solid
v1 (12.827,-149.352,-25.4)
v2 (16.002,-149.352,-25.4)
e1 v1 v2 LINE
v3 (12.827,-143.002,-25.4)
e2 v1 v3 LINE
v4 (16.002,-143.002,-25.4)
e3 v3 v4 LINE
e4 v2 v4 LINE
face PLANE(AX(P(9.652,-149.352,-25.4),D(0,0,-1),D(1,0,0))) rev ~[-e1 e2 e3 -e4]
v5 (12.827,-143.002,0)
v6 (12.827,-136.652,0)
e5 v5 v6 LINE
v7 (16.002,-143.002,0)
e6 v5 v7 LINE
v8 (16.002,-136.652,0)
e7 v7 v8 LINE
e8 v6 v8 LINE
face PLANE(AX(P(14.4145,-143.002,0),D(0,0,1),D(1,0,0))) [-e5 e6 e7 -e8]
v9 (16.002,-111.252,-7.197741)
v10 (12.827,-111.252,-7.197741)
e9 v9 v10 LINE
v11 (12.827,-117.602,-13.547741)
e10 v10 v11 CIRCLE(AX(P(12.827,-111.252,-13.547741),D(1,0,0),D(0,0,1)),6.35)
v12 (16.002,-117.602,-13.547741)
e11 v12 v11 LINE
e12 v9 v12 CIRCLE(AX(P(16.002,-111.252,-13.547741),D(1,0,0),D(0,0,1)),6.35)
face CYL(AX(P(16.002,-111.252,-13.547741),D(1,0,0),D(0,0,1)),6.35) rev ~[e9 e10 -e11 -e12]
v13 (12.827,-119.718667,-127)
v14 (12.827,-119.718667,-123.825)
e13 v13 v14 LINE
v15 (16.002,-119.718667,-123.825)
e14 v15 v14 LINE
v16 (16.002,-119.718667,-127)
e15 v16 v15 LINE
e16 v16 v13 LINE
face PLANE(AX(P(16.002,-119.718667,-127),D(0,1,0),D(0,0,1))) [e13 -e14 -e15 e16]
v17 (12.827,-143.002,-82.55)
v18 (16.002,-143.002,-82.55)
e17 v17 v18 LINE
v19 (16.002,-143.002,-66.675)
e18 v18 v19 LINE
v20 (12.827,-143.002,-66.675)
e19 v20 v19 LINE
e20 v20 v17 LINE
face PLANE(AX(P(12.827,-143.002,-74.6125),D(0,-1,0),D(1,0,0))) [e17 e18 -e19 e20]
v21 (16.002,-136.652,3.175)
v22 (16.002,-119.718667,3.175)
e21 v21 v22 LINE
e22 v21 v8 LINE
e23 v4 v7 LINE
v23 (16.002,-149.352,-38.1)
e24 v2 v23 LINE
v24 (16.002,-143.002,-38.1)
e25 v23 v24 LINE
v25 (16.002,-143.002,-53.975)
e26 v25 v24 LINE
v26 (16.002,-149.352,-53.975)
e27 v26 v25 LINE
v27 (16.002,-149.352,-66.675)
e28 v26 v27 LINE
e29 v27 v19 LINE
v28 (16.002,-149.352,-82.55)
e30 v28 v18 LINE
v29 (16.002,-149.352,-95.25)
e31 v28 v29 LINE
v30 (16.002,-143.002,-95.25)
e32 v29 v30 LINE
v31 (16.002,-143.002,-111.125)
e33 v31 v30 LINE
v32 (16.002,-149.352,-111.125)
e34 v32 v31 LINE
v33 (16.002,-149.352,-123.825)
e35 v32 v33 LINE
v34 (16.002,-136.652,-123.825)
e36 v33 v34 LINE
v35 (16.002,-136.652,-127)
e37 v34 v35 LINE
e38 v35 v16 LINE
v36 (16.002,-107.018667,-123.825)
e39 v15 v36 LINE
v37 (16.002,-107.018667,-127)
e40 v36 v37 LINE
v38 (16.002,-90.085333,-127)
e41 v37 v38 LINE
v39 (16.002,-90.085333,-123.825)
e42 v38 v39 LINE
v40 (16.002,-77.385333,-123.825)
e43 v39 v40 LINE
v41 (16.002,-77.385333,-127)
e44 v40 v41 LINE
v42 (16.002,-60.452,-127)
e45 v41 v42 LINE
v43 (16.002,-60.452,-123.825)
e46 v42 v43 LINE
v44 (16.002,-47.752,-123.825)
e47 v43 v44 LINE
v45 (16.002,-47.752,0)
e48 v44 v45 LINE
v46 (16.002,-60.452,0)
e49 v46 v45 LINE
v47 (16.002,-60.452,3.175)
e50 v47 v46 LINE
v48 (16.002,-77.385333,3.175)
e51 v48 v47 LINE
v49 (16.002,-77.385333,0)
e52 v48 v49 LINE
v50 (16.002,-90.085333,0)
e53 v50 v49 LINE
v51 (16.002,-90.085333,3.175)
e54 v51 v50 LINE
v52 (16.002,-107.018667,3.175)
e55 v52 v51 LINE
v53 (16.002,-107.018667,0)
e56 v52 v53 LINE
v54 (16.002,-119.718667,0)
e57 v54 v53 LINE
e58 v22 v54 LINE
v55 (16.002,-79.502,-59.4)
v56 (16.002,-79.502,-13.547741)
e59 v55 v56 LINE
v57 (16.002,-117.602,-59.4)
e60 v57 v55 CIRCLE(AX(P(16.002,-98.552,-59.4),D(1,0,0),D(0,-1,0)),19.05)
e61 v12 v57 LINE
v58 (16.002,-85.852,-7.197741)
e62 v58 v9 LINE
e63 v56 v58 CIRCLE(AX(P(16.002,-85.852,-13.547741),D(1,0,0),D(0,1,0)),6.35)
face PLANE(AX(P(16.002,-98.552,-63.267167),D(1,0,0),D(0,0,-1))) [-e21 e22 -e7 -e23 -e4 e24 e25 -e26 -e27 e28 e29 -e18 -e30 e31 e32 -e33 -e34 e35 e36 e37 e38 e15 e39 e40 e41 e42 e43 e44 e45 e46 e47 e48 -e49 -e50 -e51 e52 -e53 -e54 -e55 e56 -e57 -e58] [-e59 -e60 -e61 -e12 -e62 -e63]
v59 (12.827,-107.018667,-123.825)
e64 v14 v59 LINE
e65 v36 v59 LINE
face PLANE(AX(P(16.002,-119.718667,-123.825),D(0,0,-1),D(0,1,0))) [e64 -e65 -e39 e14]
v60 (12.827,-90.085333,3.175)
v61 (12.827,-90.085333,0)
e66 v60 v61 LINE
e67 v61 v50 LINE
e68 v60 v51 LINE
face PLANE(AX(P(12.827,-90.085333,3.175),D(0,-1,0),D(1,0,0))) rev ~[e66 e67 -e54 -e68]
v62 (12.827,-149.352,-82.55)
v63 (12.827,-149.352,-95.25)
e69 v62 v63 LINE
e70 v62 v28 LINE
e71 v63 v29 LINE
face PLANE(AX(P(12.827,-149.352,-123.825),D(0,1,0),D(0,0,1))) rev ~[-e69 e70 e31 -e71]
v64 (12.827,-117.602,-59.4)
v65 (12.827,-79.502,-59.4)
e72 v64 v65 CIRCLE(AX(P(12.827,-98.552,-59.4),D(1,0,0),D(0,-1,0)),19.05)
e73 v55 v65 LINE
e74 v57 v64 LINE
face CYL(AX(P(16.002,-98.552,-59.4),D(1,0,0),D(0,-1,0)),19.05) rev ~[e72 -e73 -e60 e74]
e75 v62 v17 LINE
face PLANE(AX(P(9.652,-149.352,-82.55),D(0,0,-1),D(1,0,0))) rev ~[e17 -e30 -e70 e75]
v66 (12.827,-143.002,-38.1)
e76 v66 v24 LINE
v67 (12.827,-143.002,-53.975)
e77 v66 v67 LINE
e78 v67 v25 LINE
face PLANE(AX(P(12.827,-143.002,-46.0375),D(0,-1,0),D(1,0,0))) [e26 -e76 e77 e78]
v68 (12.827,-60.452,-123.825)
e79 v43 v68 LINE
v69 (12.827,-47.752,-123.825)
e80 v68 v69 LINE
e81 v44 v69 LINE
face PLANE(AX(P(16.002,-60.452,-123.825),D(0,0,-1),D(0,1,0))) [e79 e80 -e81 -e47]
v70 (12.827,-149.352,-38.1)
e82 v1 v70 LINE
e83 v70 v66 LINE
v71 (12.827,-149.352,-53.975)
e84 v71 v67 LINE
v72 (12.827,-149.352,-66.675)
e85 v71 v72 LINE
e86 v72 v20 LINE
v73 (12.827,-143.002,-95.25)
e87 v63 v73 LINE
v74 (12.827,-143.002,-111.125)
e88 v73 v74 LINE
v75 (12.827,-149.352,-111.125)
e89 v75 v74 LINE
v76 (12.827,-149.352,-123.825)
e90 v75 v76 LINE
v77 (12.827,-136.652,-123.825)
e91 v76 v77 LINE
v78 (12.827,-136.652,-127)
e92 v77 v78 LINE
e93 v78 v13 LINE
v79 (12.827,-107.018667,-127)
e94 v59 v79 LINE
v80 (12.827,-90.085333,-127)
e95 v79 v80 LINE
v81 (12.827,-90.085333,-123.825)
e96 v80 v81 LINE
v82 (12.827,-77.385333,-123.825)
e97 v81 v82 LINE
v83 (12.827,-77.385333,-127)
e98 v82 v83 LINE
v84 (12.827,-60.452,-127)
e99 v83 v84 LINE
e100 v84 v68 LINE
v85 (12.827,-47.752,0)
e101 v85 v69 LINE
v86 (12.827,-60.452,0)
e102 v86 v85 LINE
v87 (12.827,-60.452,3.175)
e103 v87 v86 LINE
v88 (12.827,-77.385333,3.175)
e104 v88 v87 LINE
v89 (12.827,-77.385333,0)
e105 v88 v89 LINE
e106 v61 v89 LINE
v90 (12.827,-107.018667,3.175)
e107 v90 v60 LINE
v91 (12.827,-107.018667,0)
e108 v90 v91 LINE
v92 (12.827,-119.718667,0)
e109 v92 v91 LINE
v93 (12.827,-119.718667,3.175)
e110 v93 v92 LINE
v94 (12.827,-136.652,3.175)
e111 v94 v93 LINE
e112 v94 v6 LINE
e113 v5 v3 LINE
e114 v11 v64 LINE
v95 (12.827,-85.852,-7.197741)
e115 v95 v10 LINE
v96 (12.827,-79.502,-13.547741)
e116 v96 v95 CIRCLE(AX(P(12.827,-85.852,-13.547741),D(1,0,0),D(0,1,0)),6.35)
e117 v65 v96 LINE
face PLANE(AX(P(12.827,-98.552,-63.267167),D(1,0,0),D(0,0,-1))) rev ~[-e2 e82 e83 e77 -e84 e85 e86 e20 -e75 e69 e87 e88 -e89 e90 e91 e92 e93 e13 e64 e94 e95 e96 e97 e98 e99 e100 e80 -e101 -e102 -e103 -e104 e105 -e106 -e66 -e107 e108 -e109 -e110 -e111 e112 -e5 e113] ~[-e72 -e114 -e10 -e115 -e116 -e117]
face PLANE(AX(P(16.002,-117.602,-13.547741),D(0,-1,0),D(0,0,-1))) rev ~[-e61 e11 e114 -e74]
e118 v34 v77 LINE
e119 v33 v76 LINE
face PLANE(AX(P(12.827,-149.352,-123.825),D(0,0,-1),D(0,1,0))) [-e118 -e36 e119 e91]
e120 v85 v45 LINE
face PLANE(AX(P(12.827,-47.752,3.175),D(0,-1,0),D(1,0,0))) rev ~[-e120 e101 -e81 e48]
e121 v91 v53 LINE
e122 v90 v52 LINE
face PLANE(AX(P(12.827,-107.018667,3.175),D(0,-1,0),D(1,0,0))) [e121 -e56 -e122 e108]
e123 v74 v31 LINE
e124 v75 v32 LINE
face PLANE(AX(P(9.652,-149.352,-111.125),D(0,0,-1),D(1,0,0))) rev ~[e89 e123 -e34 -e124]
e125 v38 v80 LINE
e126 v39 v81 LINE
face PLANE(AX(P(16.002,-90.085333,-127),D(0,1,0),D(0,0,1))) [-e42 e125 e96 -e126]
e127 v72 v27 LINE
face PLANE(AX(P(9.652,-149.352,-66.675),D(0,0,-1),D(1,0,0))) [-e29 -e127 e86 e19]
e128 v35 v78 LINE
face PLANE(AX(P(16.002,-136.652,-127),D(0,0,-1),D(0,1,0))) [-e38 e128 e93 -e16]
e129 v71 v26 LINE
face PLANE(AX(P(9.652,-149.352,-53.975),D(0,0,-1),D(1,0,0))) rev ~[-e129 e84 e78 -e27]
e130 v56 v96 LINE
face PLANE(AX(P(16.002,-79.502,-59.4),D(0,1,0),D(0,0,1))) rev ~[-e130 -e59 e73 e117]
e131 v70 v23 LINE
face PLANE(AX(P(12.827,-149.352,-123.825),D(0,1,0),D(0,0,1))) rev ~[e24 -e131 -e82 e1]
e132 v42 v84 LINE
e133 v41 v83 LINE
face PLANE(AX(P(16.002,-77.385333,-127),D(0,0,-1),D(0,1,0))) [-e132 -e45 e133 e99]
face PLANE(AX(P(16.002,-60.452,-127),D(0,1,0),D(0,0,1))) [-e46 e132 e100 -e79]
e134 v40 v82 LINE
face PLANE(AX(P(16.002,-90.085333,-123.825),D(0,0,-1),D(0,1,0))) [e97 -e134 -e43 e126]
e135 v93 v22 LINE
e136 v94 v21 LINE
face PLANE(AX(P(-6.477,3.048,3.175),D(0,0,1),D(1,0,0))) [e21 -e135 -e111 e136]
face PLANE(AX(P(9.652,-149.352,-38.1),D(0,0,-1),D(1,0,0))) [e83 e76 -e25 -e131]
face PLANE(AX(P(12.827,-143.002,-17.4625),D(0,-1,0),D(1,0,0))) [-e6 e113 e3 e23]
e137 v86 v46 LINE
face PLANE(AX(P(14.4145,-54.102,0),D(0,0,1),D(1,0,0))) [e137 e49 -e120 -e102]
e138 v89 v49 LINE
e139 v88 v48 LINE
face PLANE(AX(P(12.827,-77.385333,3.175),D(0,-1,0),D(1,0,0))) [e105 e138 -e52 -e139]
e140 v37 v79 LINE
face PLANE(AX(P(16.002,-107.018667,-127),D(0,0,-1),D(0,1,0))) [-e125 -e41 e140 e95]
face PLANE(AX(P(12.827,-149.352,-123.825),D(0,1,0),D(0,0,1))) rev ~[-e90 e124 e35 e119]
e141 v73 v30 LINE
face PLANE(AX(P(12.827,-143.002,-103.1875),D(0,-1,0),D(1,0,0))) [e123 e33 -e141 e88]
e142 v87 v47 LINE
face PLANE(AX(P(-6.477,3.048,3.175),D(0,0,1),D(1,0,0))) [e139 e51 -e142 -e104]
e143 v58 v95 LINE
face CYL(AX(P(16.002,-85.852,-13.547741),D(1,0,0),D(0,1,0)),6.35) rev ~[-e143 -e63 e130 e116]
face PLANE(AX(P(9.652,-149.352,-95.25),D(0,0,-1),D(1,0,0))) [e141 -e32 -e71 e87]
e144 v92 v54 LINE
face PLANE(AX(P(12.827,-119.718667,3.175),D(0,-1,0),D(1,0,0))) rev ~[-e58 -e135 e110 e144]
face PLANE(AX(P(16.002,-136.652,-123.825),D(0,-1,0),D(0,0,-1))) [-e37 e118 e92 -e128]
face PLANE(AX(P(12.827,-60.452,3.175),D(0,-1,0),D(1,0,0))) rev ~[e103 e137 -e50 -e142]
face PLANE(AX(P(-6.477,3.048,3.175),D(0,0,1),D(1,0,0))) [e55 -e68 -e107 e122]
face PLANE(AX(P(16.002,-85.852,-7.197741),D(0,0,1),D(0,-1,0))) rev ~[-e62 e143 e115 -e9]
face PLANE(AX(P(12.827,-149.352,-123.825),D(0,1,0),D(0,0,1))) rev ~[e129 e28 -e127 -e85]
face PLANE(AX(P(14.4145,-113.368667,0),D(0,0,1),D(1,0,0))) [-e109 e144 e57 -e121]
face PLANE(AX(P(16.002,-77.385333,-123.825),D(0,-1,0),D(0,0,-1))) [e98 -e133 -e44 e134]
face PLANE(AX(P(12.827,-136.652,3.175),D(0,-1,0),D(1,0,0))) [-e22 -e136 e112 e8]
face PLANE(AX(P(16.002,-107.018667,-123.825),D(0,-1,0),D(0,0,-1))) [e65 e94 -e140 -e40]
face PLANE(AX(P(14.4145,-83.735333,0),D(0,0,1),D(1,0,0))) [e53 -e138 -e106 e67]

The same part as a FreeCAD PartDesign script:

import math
import FreeCAD as App
import Part
import Sketcher
Q = App.Units.Quantity

doc = App.newDocument("Part")
body = doc.addObject("PartDesign::Body", "Body")

sketch1 = body.newObject("Sketcher::SketchObject", "Sketch")
sketch1.AttachmentSupport = (doc.getObject("XY_Plane"), [""])
sketch1.MapMode = "FlatFace"
sketch1.addGeometry([
    Part.LineSegment(App.Vector(-29, 155.4, 0), App.Vector(-29, -149.4, 0)),
    Part.LineSegment(App.Vector(-29, -149.4, 0), App.Vector(16, -149.4, 0)),
    Part.LineSegment(App.Vector(16, -149.4, 0), App.Vector(16, 155.4, 0)),
    Part.LineSegment(App.Vector(16, 155.4, 0), App.Vector(-29, 155.4, 0)),
    Part.LineSegment(App.Vector(-3.3, -143, 0), App.Vector(-3.3, 133.9, 0)),
    Part.ArcOfCircle(Part.Circle(App.Vector(-5.8, 133.9, 0), App.Vector(0, 0, 1), 2.5), math.radians(0), math.radians(90)),
    Part.LineSegment(App.Vector(-5.8, 136.4, 0), App.Vector(-16.3, 136.4, 0)),
    Part.LineSegment(App.Vector(-16.3, 136.4, 0), App.Vector(-16.3, 143, 0)),
    Part.LineSegment(App.Vector(-16.3, 143, 0), App.Vector(3.3, 143, 0)),
    Part.LineSegment(App.Vector(3.3, 143, 0), App.Vector(3.3, -143, 0)),
    Part.LineSegment(App.Vector(3.3, -143, 0), App.Vector(-3.3, -143, 0)),
], False)
sketch1.addConstraint([
    Sketcher.Constraint("Coincident", 0, 2, 1, 1),
    Sketcher.Constraint("Coincident", 1, 2, 2, 1),
    Sketcher.Constraint("Coincident", 2, 2, 3, 1),
    Sketcher.Constraint("Coincident", 3, 2, 0, 1),
    Sketcher.Constraint("Tangent", 4, 2, 5, 1),
    Sketcher.Constraint("Tangent", 5, 2, 6, 1),
    Sketcher.Constraint("Coincident", 6, 2, 7, 1),
    Sketcher.Constraint("Coincident", 7, 2, 8, 1),
    Sketcher.Constraint("Coincident", 8, 2, 9, 1),
    Sketcher.Constraint("Coincident", 9, 2, 10, 1),
    Sketcher.Constraint("Coincident", 10, 2, 4, 1),
    Sketcher.Constraint("Vertical", 0),
    Sketcher.Constraint("Horizontal", 1),
    Sketcher.Constraint("Vertical", 2),
    Sketcher.Constraint("Horizontal", 3),
    Sketcher.Constraint("Vertical", 4),
    Sketcher.Constraint("Horizontal", 6),
    Sketcher.Constraint("Vertical", 7),
    Sketcher.Constraint("Horizontal", 8),
    Sketcher.Constraint("Vertical", 9),
    Sketcher.Constraint("Horizontal", 10),
    Sketcher.Constraint("Symmetric", 8, 2, 10, 2, -1, 1),
    Sketcher.Constraint("Equal", 10, 7),
    Sketcher.Constraint("Radius", 5, Q("0.1 in")),
    Sketcher.Constraint("DistanceY", 0, 2, 0, 1, Q("12 in")),
    Sketcher.Constraint("DistanceY", 4, 1, 4, 2, Q("10.9 in")),
    Sketcher.Constraint("DistanceX", 1, 1, 1, 2, Q("1.77 in")),
    Sketcher.Constraint("DistanceX", 6, 2, 6, 1, Q("0.41 in")),
    Sketcher.Constraint("DistanceX", 8, 1, 8, 2, Q("0.77 in")),
    Sketcher.Constraint("DistanceX", 3, 2, 6, 2, Q("0.5 in")),
    Sketcher.Constraint("DistanceY", 0, 2, -1, 1, Q("5.88 in")),
])
pad1 = body.newObject("PartDesign::Pad", "Pad")
pad1.Profile = sketch1
pad1.Length = Q("0.125 in")

sketch2 = body.newObject("Sketcher::SketchObject", "Sketch001")
sketch2.AttachmentSupport = (doc.getObject("YZ_Plane"), [""])
sketch2.MapMode = "FlatFace"
sketch2.AttachmentOffset = App.Placement(App.Vector(0, 0, 0.63 * 25.4), App.Rotation())
sketch2.addGeometry([
    Part.LineSegment(App.Vector(-47.8, -123.8, 0), App.Vector(-47.8, 3.2, 0)),
    Part.LineSegment(App.Vector(-47.8, 3.2, 0), App.Vector(-149.4, 3.2, 0)),
    Part.LineSegment(App.Vector(-149.4, 3.2, 0), App.Vector(-149.4, -123.8, 0)),
    Part.LineSegment(App.Vector(-149.4, -123.8, 0), App.Vector(-136.7, -123.8, 0)),
    Part.LineSegment(App.Vector(-136.7, -123.8, 0), App.Vector(-136.7, -127, 0)),
    Part.LineSegment(App.Vector(-136.7, -127, 0), App.Vector(-119.7, -127, 0)),
    Part.LineSegment(App.Vector(-119.7, -127, 0), App.Vector(-119.7, -123.8, 0)),
    Part.LineSegment(App.Vector(-119.7, -123.8, 0), App.Vector(-107, -123.8, 0)),
    Part.LineSegment(App.Vector(-107, -123.8, 0), App.Vector(-107, -127, 0)),
    Part.LineSegment(App.Vector(-107, -127, 0), App.Vector(-90.1, -127, 0)),
    Part.LineSegment(App.Vector(-90.1, -127, 0), App.Vector(-90.1, -123.8, 0)),
    Part.LineSegment(App.Vector(-90.1, -123.8, 0), App.Vector(-77.4, -123.8, 0)),
    Part.LineSegment(App.Vector(-77.4, -123.8, 0), App.Vector(-77.4, -127, 0)),
    Part.LineSegment(App.Vector(-77.4, -127, 0), App.Vector(-60.5, -127, 0)),
    Part.LineSegment(App.Vector(-60.5, -127, 0), App.Vector(-60.5, -123.8, 0)),
    Part.LineSegment(App.Vector(-60.5, -123.8, 0), App.Vector(-47.8, -123.8, 0)),
    Part.LineSegment(App.Vector(-101, -11.9, 0), App.Vector(-106.1, -11.9, 0)),
    Part.ArcOfCircle(Part.Circle(App.Vector(-106.1, -10.4, 0), App.Vector(0, 0, 1), 1.5), math.radians(90), math.radians(270)),
    Part.LineSegment(App.Vector(-106.1, -8.9, 0), App.Vector(-101, -8.9, 0)),
    Part.ArcOfCircle(Part.Circle(App.Vector(-101, -10.4, 0), App.Vector(0, 0, 1), 1.5), math.radians(-90), math.radians(90)),
    Part.LineSegment(App.Vector(-101, -60.9, 0), App.Vector(-106.1, -60.9, 0)),
    Part.ArcOfCircle(Part.Circle(App.Vector(-106.1, -59.4, 0), App.Vector(0, 0, 1), 1.5), math.radians(90), math.radians(270)),
    Part.LineSegment(App.Vector(-106.1, -57.9, 0), App.Vector(-101, -57.9, 0)),
    Part.ArcOfCircle(Part.Circle(App.Vector(-101, -59.4, 0), App.Vector(0, 0, 1), 1.5), math.radians(-90), math.radians(90)),
    Part.ArcOfCircle(Part.Circle(App.Vector(-96.1, -10.4, 0), App.Vector(0, 0, 1), 1.5), math.radians(90), math.radians(270)),
    Part.LineSegment(App.Vector(-96.1, -8.9, 0), App.Vector(-91, -8.9, 0)),
    Part.ArcOfCircle(Part.Circle(App.Vector(-91, -10.4, 0), App.Vector(0, 0, 1), 1.5), math.radians(-90), math.radians(90)),
    Part.LineSegment(App.Vector(-91, -11.9, 0), App.Vector(-96.1, -11.9, 0)),
    Part.LineSegment(App.Vector(-96, -36.4, 0), App.Vector(-101.1, -36.4, 0)),
    Part.ArcOfCircle(Part.Circle(App.Vector(-101.1, -25.4, 0), App.Vector(0, 0, 1), 11), math.radians(90), math.radians(270)),
    Part.LineSegment(App.Vector(-101.1, -14.4, 0), App.Vector(-96, -14.4, 0)),
    Part.ArcOfCircle(Part.Circle(App.Vector(-96, -25.4, 0), App.Vector(0, 0, 1), 11), math.radians(-90), math.radians(90)),
    Part.LineSegment(App.Vector(-96.1, -57.9, 0), App.Vector(-91, -57.9, 0)),
    Part.ArcOfCircle(Part.Circle(App.Vector(-91, -59.4, 0), App.Vector(0, 0, 1), 1.5), math.radians(-90), math.radians(90)),
    Part.LineSegment(App.Vector(-91, -60.9, 0), App.Vector(-96.1, -60.9, 0)),
    Part.ArcOfCircle(Part.Circle(App.Vector(-96.1, -59.4, 0), App.Vector(0, 0, 1), 1.5), math.radians(90), math.radians(270)),
], False)
sketch2.addConstraint([
    Sketcher.Constraint("Coincident", 0, 2, 1, 1),
    Sketcher.Constraint("Coincident", 1, 2, 2, 1),
    Sketcher.Constraint("Coincident", 2, 2, 3, 1),
    Sketcher.Constraint("Coincident", 3, 2, 4, 1),
    Sketcher.Constraint("Coincident", 4, 2, 5, 1),
    Sketcher.Constraint("Coincident", 5, 2, 6, 1),
    Sketcher.Constraint("Coincident", 6, 2, 7, 1),
    Sketcher.Constraint("Coincident", 7, 2, 8, 1),
    Sketcher.Constraint("Coincident", 8, 2, 9, 1),
    Sketcher.Constraint("Coincident", 9, 2, 10, 1),
    Sketcher.Constraint("Coincident", 10, 2, 11, 1),
    Sketcher.Constraint("Coincident", 11, 2, 12, 1),
    Sketcher.Constraint("Coincident", 12, 2, 13, 1),
    Sketcher.Constraint("Coincident", 13, 2, 14, 1),
    Sketcher.Constraint("Coincident", 14, 2, 15, 1),
    Sketcher.Constraint("Coincident", 15, 2, 0, 1),
    Sketcher.Constraint("Tangent", 16, 2, 17, 2),
    Sketcher.Constraint("Tangent", 17, 1, 18, 1),
    Sketcher.Constraint("Tangent", 18, 2, 19, 2),
    Sketcher.Constraint("Tangent", 19, 1, 16, 1),
    Sketcher.Constraint("Tangent", 20, 2, 21, 2),
    Sketcher.Constraint("Tangent", 21, 1, 22, 1),
    Sketcher.Constraint("Tangent", 22, 2, 23, 2),
    Sketcher.Constraint("Tangent", 23, 1, 20, 1),
    Sketcher.Constraint("Tangent", 24, 1, 25, 1),
    Sketcher.Constraint("Tangent", 25, 2, 26, 2),
    Sketcher.Constraint("Tangent", 26, 1, 27, 1),
    Sketcher.Constraint("Tangent", 27, 2, 24, 2),
    Sketcher.Constraint("Tangent", 28, 2, 29, 2),
    Sketcher.Constraint("Tangent", 29, 1, 30, 1),
    Sketcher.Constraint("Tangent", 30, 2, 31, 2),
    Sketcher.Constraint("Tangent", 31, 1, 28, 1),
    Sketcher.Constraint("Tangent", 32, 2, 33, 2),
    Sketcher.Constraint("Tangent", 33, 1, 34, 1),
    Sketcher.Constraint("Tangent", 34, 2, 35, 2),
    Sketcher.Constraint("Tangent", 35, 1, 32, 1),
    Sketcher.Constraint("Vertical", 0),
    Sketcher.Constraint("Horizontal", 1),
    Sketcher.Constraint("Vertical", 2),
    Sketcher.Constraint("Horizontal", 3),
    Sketcher.Constraint("Vertical", 4),
    Sketcher.Constraint("Horizontal", 5),
    Sketcher.Constraint("Vertical", 6),
    Sketcher.Constraint("Horizontal", 7),
    Sketcher.Constraint("Vertical", 8),
    Sketcher.Constraint("Horizontal", 9),
    Sketcher.Constraint("Vertical", 10),
    Sketcher.Constraint("Horizontal", 11),
    Sketcher.Constraint("Vertical", 12),
    Sketcher.Constraint("Horizontal", 13),
    Sketcher.Constraint("Vertical", 14),
    Sketcher.Constraint("Horizontal", 15),
    Sketcher.Constraint("Horizontal", 16),
    Sketcher.Constraint("Horizontal", 18),
    Sketcher.Constraint("Horizontal", 20),
    Sketcher.Constraint("Horizontal", 22),
    Sketcher.Constraint("Horizontal", 25),
    Sketcher.Constraint("Horizontal", 27),
    Sketcher.Constraint("Horizontal", 28),
    Sketcher.Constraint("Horizontal", 30),
    Sketcher.Constraint("Horizontal", 32),
    Sketcher.Constraint("Horizontal", 34),
    Sketcher.Constraint("Equal", 19, 21),
    Sketcher.Constraint("Equal", 23, 24),
    Sketcher.Constraint("Equal", 26, 33),
    Sketcher.Constraint("Horizontal", 19, 3, 24, 3),
    Sketcher.Constraint("Horizontal", 23, 3, 33, 3),
    Sketcher.Constraint("Horizontal", 3, 2, 6, 2),
    Sketcher.Constraint("Horizontal", 5, 2, 8, 2),
    Sketcher.Constraint("Horizontal", 7, 2, 10, 2),
    Sketcher.Constraint("Horizontal", 9, 2, 12, 2),
    Sketcher.Constraint("Horizontal", 11, 2, 14, 2),
    Sketcher.Constraint("Vertical", 17, 3, 21, 3),
    Sketcher.Constraint("Vertical", 19, 3, 23, 3),
    Sketcher.Constraint("Vertical", 26, 3, 33, 3),
    Sketcher.Constraint("Vertical", 24, 3, 35, 3),
    Sketcher.Constraint("Equal", 3, 7),
    Sketcher.Constraint("Equal", 5, 9),
    Sketcher.Constraint("Equal", 7, 11),
    Sketcher.Constraint("Equal", 9, 13),
    Sketcher.Constraint("Equal", 11, 15),
    Sketcher.Constraint("Equal", 22, 25),
    Sketcher.Constraint("Equal", 27, 28),
    Sketcher.Constraint("DistanceX", 1, 2, 1, 1, Q("4 in")),
    Sketcher.Constraint("DistanceY", 0, 1, 0, 2, Q("5 in")),
    Sketcher.Constraint("DistanceX", 3, 1, 3, 2, Q("0.5 in")),
    Sketcher.Constraint("DistanceX", 16, 2, 16, 1, Q("0.2 in")),
    Sketcher.Constraint("DistanceY", 29, 3, -1, 1, Q("1 in")),
    Sketcher.Constraint("DistanceY", 4, 2, -1, 1, Q("5 in")),
    Sketcher.Constraint("DistanceX", 31, 3, 0, 2, Q("1.9 in")),
    Sketcher.Constraint("DistanceY", 4, 2, 4, 1, Q("0.125 in")),
    Sketcher.Constraint("DistanceX", 29, 3, -1, 1, Q("3.98 in")),
    Sketcher.Constraint("Radius", 17, Q("1.5 mm")),
    Sketcher.Constraint("Radius", 29, Q("11 mm")),
    Sketcher.Constraint("DistanceX", 17, 3, -1, 1, Q("106.092 mm")),
    Sketcher.Constraint("DistanceY", 17, 3, -1, 1, Q("10.4 mm")),
    Sketcher.Constraint("DistanceY", 21, 3, -1, 1, Q("59.4 mm")),
    Sketcher.Constraint("DistanceX", 24, 3, -1, 1, Q("96.092 mm")),
])
pad2 = body.newObject("PartDesign::Pad", "Pad001")
pad2.Profile = sketch2
pad2.Length = Q("0.125 in")
pad2.Reversed = True

sketch3 = body.newObject("Sketcher::SketchObject", "Sketch002")
sketch3.AttachmentSupport = (doc.getObject("YZ_Plane"), [""])
sketch3.MapMode = "FlatFace"
sketch3.AttachmentOffset = App.Placement(App.Vector(0, 0, 0.505 * 25.4), App.Rotation())
sketch3.addGeometry([
    Part.LineSegment(App.Vector(-143, -124, 0), App.Vector(-149, -124, 0)),
    Part.LineSegment(App.Vector(-149, -124, 0), App.Vector(-149, 0, 0)),
    Part.LineSegment(App.Vector(-149, 0, 0), App.Vector(-143, 0, 0)),
    Part.LineSegment(App.Vector(-143, 0, 0), App.Vector(-143, -124, 0)),
], False)
sketch3.addConstraint([
    Sketcher.Constraint("Coincident", 0, 2, 1, 1),
    Sketcher.Constraint("Coincident", 1, 2, 2, 1),
    Sketcher.Constraint("Coincident", 2, 2, 3, 1),
    Sketcher.Constraint("Coincident", 3, 2, 0, 1),
    Sketcher.Constraint("Horizontal", 0),
    Sketcher.Constraint("Vertical", 1),
    Sketcher.Constraint("Horizontal", 2),
    Sketcher.Constraint("Vertical", 3),
    Sketcher.Constraint("PointOnObject", 1, 2, -1),
    Sketcher.Constraint("DistanceX", 0, 2, 0, 1, Q("0.25 in")),
    Sketcher.Constraint("DistanceY", 1, 1, 1, 2, Q("4.875 in")),
    Sketcher.Constraint("DistanceX", 0, 2, -1, 1, Q("5.88 in")),
])
pad3 = body.newObject("PartDesign::Pad", "Pad002")
pad3.Profile = sketch3
pad3.Length = Q("1.645 in")
pad3.Reversed = True

sketch4 = body.newObject("Sketcher::SketchObject", "Sketch003")
sketch4.AttachmentSupport = (doc.getObject("XY_Plane"), [""])
sketch4.MapMode = "FlatFace"
sketch4.AttachmentOffset = App.Placement(App.Vector(0, 0, 0.125 * 25.4), App.Rotation())
sketch4.addGeometry([
    Part.LineSegment(App.Vector(12.8, -149.4, 0), App.Vector(12.8, -47.8, 0)),
    Part.LineSegment(App.Vector(12.8, -47.8, 0), App.Vector(16, -47.8, 0)),
    Part.LineSegment(App.Vector(16, -47.8, 0), App.Vector(16, 165.7, 0)),
    Part.LineSegment(App.Vector(16, 165.7, 0), App.Vector(-54.2, 165.7, 0)),
    Part.LineSegment(App.Vector(-54.2, 165.7, 0), App.Vector(-54.2, -149.4, 0)),
    Part.LineSegment(App.Vector(-54.2, -149.4, 0), App.Vector(12.8, -149.4, 0)),
    Part.LineSegment(App.Vector(-5.8, 136.4, 0), App.Vector(-16.3, 136.4, 0)),
    Part.LineSegment(App.Vector(-16.3, 136.4, 0), App.Vector(-16.3, 143, 0)),
    Part.LineSegment(App.Vector(-16.3, 143, 0), App.Vector(3.3, 143, 0)),
    Part.LineSegment(App.Vector(3.3, 143, 0), App.Vector(3.3, -143, 0)),
    Part.LineSegment(App.Vector(3.3, -143, 0), App.Vector(-3.3, -143, 0)),
    Part.LineSegment(App.Vector(-3.3, -143, 0), App.Vector(-3.3, 133.9, 0)),
    Part.ArcOfCircle(Part.Circle(App.Vector(-5.8, 133.9, 0), App.Vector(0, 0, 1), 2.5), math.radians(0), math.radians(90)),
], False)
sketch4.addConstraint([
    Sketcher.Constraint("Coincident", 0, 2, 1, 1),
    Sketcher.Constraint("Coincident", 1, 2, 2, 1),
    Sketcher.Constraint("Coincident", 2, 2, 3, 1),
    Sketcher.Constraint("Coincident", 3, 2, 4, 1),
    Sketcher.Constraint("Coincident", 4, 2, 5, 1),
    Sketcher.Constraint("Coincident", 5, 2, 0, 1),
    Sketcher.Constraint("Coincident", 6, 2, 7, 1),
    Sketcher.Constraint("Coincident", 7, 2, 8, 1),
    Sketcher.Constraint("Coincident", 8, 2, 9, 1),
    Sketcher.Constraint("Coincident", 9, 2, 10, 1),
    Sketcher.Constraint("Coincident", 10, 2, 11, 1),
    Sketcher.Constraint("Tangent", 11, 2, 12, 1),
    Sketcher.Constraint("Tangent", 12, 2, 6, 1),
    Sketcher.Constraint("Vertical", 0),
    Sketcher.Constraint("Horizontal", 1),
    Sketcher.Constraint("Vertical", 2),
    Sketcher.Constraint("Horizontal", 3),
    Sketcher.Constraint("Vertical", 4),
    Sketcher.Constraint("Horizontal", 5),
    Sketcher.Constraint("Horizontal", 6),
    Sketcher.Constraint("Vertical", 7),
    Sketcher.Constraint("Horizontal", 8),
    Sketcher.Constraint("Vertical", 9),
    Sketcher.Constraint("Horizontal", 10),
    Sketcher.Constraint("Vertical", 11),
    Sketcher.Constraint("Symmetric", 8, 2, 10, 2, -1, 1),
    Sketcher.Constraint("Equal", 10, 7),
    Sketcher.Constraint("Radius", 12, Q("0.1 in")),
    Sketcher.Constraint("DistanceY", 0, 1, 0, 2, Q("4 in")),
    Sketcher.Constraint("DistanceY", 11, 1, 11, 2, Q("10.9 in")),
    Sketcher.Constraint("DistanceX", 6, 2, 6, 1, Q("0.41 in")),
    Sketcher.Constraint("DistanceX", 8, 1, 8, 2, Q("0.77 in")),
    Sketcher.Constraint("DistanceX", 8, 2, 2, 2, Q("0.5 in")),
    Sketcher.Constraint("DistanceX", 1, 1, 1, 2, Q("0.125 in")),
    Sketcher.Constraint("DistanceY", 0, 2, -1, 1, Q("1.88 in")),
    Sketcher.Constraint("DistanceY", 2, 1, 2, 2, Q("213.45135 mm")),
    Sketcher.Constraint("DistanceX", 3, 2, 3, 1, Q("70.225543 mm")),
])
pocket1 = body.newObject("PartDesign::Pocket", "Pocket")
pocket1.Profile = sketch4
pocket1.Type = "ThroughAll"
pocket1.Midplane = True

sketch5 = body.newObject("Sketcher::SketchObject", "Sketch004")
sketch5.AttachmentSupport = (doc.getObject("XY_Plane"), [""])
sketch5.MapMode = "FlatFace"
sketch5.AttachmentOffset = App.Placement(App.Vector(0, 0, 0.125 * 25.4), App.Rotation())
sketch5.addGeometry([
    Part.LineSegment(App.Vector(12.8, -47.8, 0), App.Vector(12.8, -60.5, 0)),
    Part.LineSegment(App.Vector(12.8, -60.5, 0), App.Vector(16, -60.5, 0)),
    Part.LineSegment(App.Vector(16, -60.5, 0), App.Vector(16, -47.8, 0)),
    Part.LineSegment(App.Vector(16, -47.8, 0), App.Vector(12.8, -47.8, 0)),
    Part.LineSegment(App.Vector(12.8, -77.4, 0), App.Vector(12.8, -90.1, 0)),
    Part.LineSegment(App.Vector(12.8, -90.1, 0), App.Vector(16, -90.1, 0)),
    Part.LineSegment(App.Vector(16, -90.1, 0), App.Vector(16, -77.4, 0)),
    Part.LineSegment(App.Vector(16, -77.4, 0), App.Vector(12.8, -77.4, 0)),
    Part.LineSegment(App.Vector(12.8, -107, 0), App.Vector(12.8, -119.7, 0)),
    Part.LineSegment(App.Vector(12.8, -119.7, 0), App.Vector(16, -119.7, 0)),
    Part.LineSegment(App.Vector(16, -119.7, 0), App.Vector(16, -107, 0)),
    Part.LineSegment(App.Vector(16, -107, 0), App.Vector(12.8, -107, 0)),
    Part.LineSegment(App.Vector(12.8, -136.7, 0), App.Vector(12.8, -149.4, 0)),
    Part.LineSegment(App.Vector(12.8, -149.4, 0), App.Vector(16, -149.4, 0)),
    Part.LineSegment(App.Vector(16, -149.4, 0), App.Vector(16, -136.7, 0)),
    Part.LineSegment(App.Vector(16, -136.7, 0), App.Vector(12.8, -136.7, 0)),
], False)
sketch5.addConstraint([
    Sketcher.Constraint("Coincident", 0, 2, 1, 1),
    Sketcher.Constraint("Coincident", 1, 2, 2, 1),
    Sketcher.Constraint("Coincident", 2, 2, 3, 1),
    Sketcher.Constraint("Coincident", 3, 2, 0, 1),
    Sketcher.Constraint("Coincident", 4, 2, 5, 1),
    Sketcher.Constraint("Coincident", 5, 2, 6, 1),
    Sketcher.Constraint("Coincident", 6, 2, 7, 1),
    Sketcher.Constraint("Coincident", 7, 2, 4, 1),
    Sketcher.Constraint("Coincident", 8, 2, 9, 1),
    Sketcher.Constraint("Coincident", 9, 2, 10, 1),
    Sketcher.Constraint("Coincident", 10, 2, 11, 1),
    Sketcher.Constraint("Coincident", 11, 2, 8, 1),
    Sketcher.Constraint("Coincident", 12, 2, 13, 1),
    Sketcher.Constraint("Coincident", 13, 2, 14, 1),
    Sketcher.Constraint("Coincident", 14, 2, 15, 1),
    Sketcher.Constraint("Coincident", 15, 2, 12, 1),
    Sketcher.Constraint("Vertical", 0),
    Sketcher.Constraint("Horizontal", 1),
    Sketcher.Constraint("Vertical", 2),
    Sketcher.Constraint("Horizontal", 3),
    Sketcher.Constraint("Vertical", 4),
    Sketcher.Constraint("Horizontal", 5),
    Sketcher.Constraint("Vertical", 6),
    Sketcher.Constraint("Horizontal", 7),
    Sketcher.Constraint("Vertical", 8),
    Sketcher.Constraint("Horizontal", 9),
    Sketcher.Constraint("Vertical", 10),
    Sketcher.Constraint("Horizontal", 11),
    Sketcher.Constraint("Vertical", 12),
    Sketcher.Constraint("Horizontal", 13),
    Sketcher.Constraint("Vertical", 14),
    Sketcher.Constraint("Horizontal", 15),
    Sketcher.Constraint("Vertical", 3, 2, 4, 2),
    Sketcher.Constraint("Vertical", 2, 2, 5, 2),
    Sketcher.Constraint("Vertical", 7, 2, 8, 2),
    Sketcher.Constraint("Vertical", 6, 2, 9, 2),
    Sketcher.Constraint("Vertical", 11, 2, 12, 2),
    Sketcher.Constraint("Vertical", 10, 2, 13, 2),
    Sketcher.Constraint("Equal", 2, 4),
    Sketcher.Constraint("Equal", 6, 8),
    Sketcher.Constraint("Equal", 10, 12),
    Sketcher.Constraint("DistanceY", 0, 2, 0, 1, Q("0.5 in")),
    Sketcher.Constraint("DistanceX", 1, 1, 1, 2, Q("0.125 in")),
    Sketcher.Constraint("DistanceY", 0, 2, -1, 1, Q("2.38 in")),
    Sketcher.Constraint("DistanceX", -1, 1, 1, 2, Q("0.63 in")),
    Sketcher.Constraint("DistanceY", 12, 2, -1, 1, Q("5.88 in")),
    Sketcher.Constraint("DistanceY", 4, 2, -1, 1, Q("90.085333 mm")),
    Sketcher.Constraint("DistanceY", 8, 2, -1, 1, Q("119.718667 mm")),
])
pocket2 = body.newObject("PartDesign::Pocket", "Pocket001")
pocket2.Profile = sketch5
pocket2.Length = Q("0.125 in")

sketch6 = body.newObject("Sketcher::SketchObject", "Sketch005")
sketch6.AttachmentSupport = (doc.getObject("XZ_Plane"), [""])
sketch6.MapMode = "FlatFace"
sketch6.AttachmentOffset = App.Placement(App.Vector(0, 0, 5.88 * 25.4), App.Rotation())
sketch6.addGeometry([
    Part.LineSegment(App.Vector(10, -95, 0), App.Vector(10, -111, 0)),
    Part.LineSegment(App.Vector(10, -111, 0), App.Vector(16, -111, 0)),
    Part.LineSegment(App.Vector(16, -111, 0), App.Vector(16, -95, 0)),
    Part.LineSegment(App.Vector(16, -95, 0), App.Vector(10, -95, 0)),
    Part.LineSegment(App.Vector(10, -67, 0), App.Vector(10, -83, 0)),
    Part.LineSegment(App.Vector(10, -83, 0), App.Vector(16, -83, 0)),
    Part.LineSegment(App.Vector(16, -83, 0), App.Vector(16, -67, 0)),
    Part.LineSegment(App.Vector(16, -67, 0), App.Vector(10, -67, 0)),
    Part.LineSegment(App.Vector(10, -38, 0), App.Vector(10, -54, 0)),
    Part.LineSegment(App.Vector(10, -54, 0), App.Vector(16, -54, 0)),
    Part.LineSegment(App.Vector(16, -54, 0), App.Vector(16, -38, 0)),
    Part.LineSegment(App.Vector(16, -38, 0), App.Vector(10, -38, 0)),
    Part.LineSegment(App.Vector(10, -25, 0), App.Vector(16, -25, 0)),
    Part.LineSegment(App.Vector(16, -25, 0), App.Vector(16, 3, 0)),
    Part.LineSegment(App.Vector(16, 3, 0), App.Vector(10, 3, 0)),
    Part.LineSegment(App.Vector(10, 3, 0), App.Vector(10, -25, 0)),
], False)
sketch6.addConstraint([
    Sketcher.Constraint("Coincident", 0, 2, 1, 1),
    Sketcher.Constraint("Coincident", 1, 2, 2, 1),
    Sketcher.Constraint("Coincident", 2, 2, 3, 1),
    Sketcher.Constraint("Coincident", 3, 2, 0, 1),
    Sketcher.Constraint("Coincident", 4, 2, 5, 1),
    Sketcher.Constraint("Coincident", 5, 2, 6, 1),
    Sketcher.Constraint("Coincident", 6, 2, 7, 1),
    Sketcher.Constraint("Coincident", 7, 2, 4, 1),
    Sketcher.Constraint("Coincident", 8, 2, 9, 1),
    Sketcher.Constraint("Coincident", 9, 2, 10, 1),
    Sketcher.Constraint("Coincident", 10, 2, 11, 1),
    Sketcher.Constraint("Coincident", 11, 2, 8, 1),
    Sketcher.Constraint("Coincident", 12, 2, 13, 1),
    Sketcher.Constraint("Coincident", 13, 2, 14, 1),
    Sketcher.Constraint("Coincident", 14, 2, 15, 1),
    Sketcher.Constraint("Coincident", 15, 2, 12, 1),
    Sketcher.Constraint("Vertical", 0),
    Sketcher.Constraint("Horizontal", 1),
    Sketcher.Constraint("Vertical", 2),
    Sketcher.Constraint("Horizontal", 3),
    Sketcher.Constraint("Vertical", 4),
    Sketcher.Constraint("Horizontal", 5),
    Sketcher.Constraint("Vertical", 6),
    Sketcher.Constraint("Horizontal", 7),
    Sketcher.Constraint("Vertical", 8),
    Sketcher.Constraint("Horizontal", 9),
    Sketcher.Constraint("Vertical", 10),
    Sketcher.Constraint("Horizontal", 11),
    Sketcher.Constraint("Horizontal", 12),
    Sketcher.Constraint("Vertical", 13),
    Sketcher.Constraint("Horizontal", 14),
    Sketcher.Constraint("Vertical", 15),
    Sketcher.Constraint("Vertical", 3, 2, 4, 2),
    Sketcher.Constraint("Vertical", 2, 2, 5, 2),
    Sketcher.Constraint("Vertical", 7, 2, 8, 2),
    Sketcher.Constraint("Vertical", 6, 2, 9, 2),
    Sketcher.Constraint("Vertical", 10, 2, 12, 2),
    Sketcher.Constraint("Vertical", 11, 2, 14, 2),
    Sketcher.Constraint("Equal", 2, 4),
    Sketcher.Constraint("Equal", 6, 8),
    Sketcher.Constraint("DistanceY", 12, 2, -1, 1, Q("1 in")),
    Sketcher.Constraint("DistanceX", 1, 1, 1, 2, Q("0.25 in")),
    Sketcher.Constraint("DistanceY", 10, 2, -1, 1, Q("1.5 in")),
    Sketcher.Constraint("DistanceY", 3, 2, 4, 2, Q("0.5 in")),
    Sketcher.Constraint("DistanceY", 7, 2, 8, 2, Q("0.5 in")),
    Sketcher.Constraint("DistanceY", 0, 2, 0, 1, Q("0.625 in")),
    Sketcher.Constraint("DistanceY", 13, 1, 13, 2, Q("1.125 in")),
    Sketcher.Constraint("DistanceX", -1, 1, 0, 2, Q("0.38 in")),
])
pocket3 = body.newObject("PartDesign::Pocket", "Pocket002")
pocket3.Profile = sketch6
pocket3.Length = Q("0.25 in")

sketch7 = body.newObject("Sketcher::SketchObject", "Sketch006")
sketch7.AttachmentSupport = (doc.getObject("YZ_Plane"), [""])
sketch7.MapMode = "FlatFace"
sketch7.AttachmentOffset = App.Placement(App.Vector(0, 0, 0.63 * 25.4), App.Rotation())
sketch7.addGeometry([
    Part.ArcOfCircle(Part.Circle(App.Vector(-85.9, -13.5, 0), App.Vector(0, 0, 1), 6.3), math.radians(0), math.radians(90)),
    Part.LineSegment(App.Vector(-85.9, -7.2, 0), App.Vector(-111.3, -7.2, 0)),
    Part.ArcOfCircle(Part.Circle(App.Vector(-111.3, -13.5, 0), App.Vector(0, 0, 1), 6.3), math.radians(90), math.radians(180)),
    Part.LineSegment(App.Vector(-117.6, -13.5, 0), App.Vector(-117.6, -59.4, 0)),
    Part.ArcOfCircle(Part.Circle(App.Vector(-98.6, -59.4, 0), App.Vector(0, 0, 1), 19.1), math.radians(180), math.radians(360)),
    Part.LineSegment(App.Vector(-79.5, -59.4, 0), App.Vector(-79.5, -13.5, 0)),
    Part.LineSegment(App.Vector(-101, -11.9, 0), App.Vector(-106.1, -11.9, 0)),
    Part.ArcOfCircle(Part.Circle(App.Vector(-106.1, -10.4, 0), App.Vector(0, 0, 1), 1.5), math.radians(115), math.radians(270)),
    Part.ArcOfCircle(Part.Circle(App.Vector(-106.1, -10.4, 0), App.Vector(0, 0, 1), 1.5), math.radians(90), math.radians(115)),
    Part.LineSegment(App.Vector(-106.1, -8.9, 0), App.Vector(-101, -8.9, 0)),
    Part.ArcOfCircle(Part.Circle(App.Vector(-101, -10.4, 0), App.Vector(0, 0, 1), 1.5), math.radians(-90), math.radians(90)),
    Part.ArcOfCircle(Part.Circle(App.Vector(-101, -59.4, 0), App.Vector(0, 0, 1), 1.5), math.radians(-90), math.radians(90)),
    Part.LineSegment(App.Vector(-101, -60.9, 0), App.Vector(-106.1, -60.9, 0)),
    Part.ArcOfCircle(Part.Circle(App.Vector(-106.1, -59.4, 0), App.Vector(0, 0, 1), 1.5), math.radians(90), math.radians(270)),
    Part.LineSegment(App.Vector(-106.1, -57.9, 0), App.Vector(-101, -57.9, 0)),
    Part.LineSegment(App.Vector(-96.1, -8.9, 0), App.Vector(-91, -8.9, 0)),
    Part.ArcOfCircle(Part.Circle(App.Vector(-91, -10.4, 0), App.Vector(0, 0, 1), 1.5), math.radians(65), math.radians(90)),
    Part.ArcOfCircle(Part.Circle(App.Vector(-91, -10.4, 0), App.Vector(0, 0, 1), 1.5), math.radians(-90), math.radians(65)),
    Part.LineSegment(App.Vector(-91, -11.9, 0), App.Vector(-96.1, -11.9, 0)),
    Part.ArcOfCircle(Part.Circle(App.Vector(-96.1, -10.4, 0), App.Vector(0, 0, 1), 1.5), math.radians(90), math.radians(270)),
    Part.LineSegment(App.Vector(-101.1, -14.4, 0), App.Vector(-96, -14.4, 0)),
    Part.ArcOfCircle(Part.Circle(App.Vector(-96, -25.4, 0), App.Vector(0, 0, 1), 11), math.radians(-90), math.radians(90)),
    Part.LineSegment(App.Vector(-96, -36.4, 0), App.Vector(-101.1, -36.4, 0)),
    Part.ArcOfCircle(Part.Circle(App.Vector(-101.1, -25.4, 0), App.Vector(0, 0, 1), 11), math.radians(90), math.radians(270)),
    Part.ArcOfCircle(Part.Circle(App.Vector(-91, -59.4, 0), App.Vector(0, 0, 1), 1.5), math.radians(-90), math.radians(90)),
    Part.LineSegment(App.Vector(-91, -60.9, 0), App.Vector(-96.1, -60.9, 0)),
    Part.ArcOfCircle(Part.Circle(App.Vector(-96.1, -59.4, 0), App.Vector(0, 0, 1), 1.5), math.radians(90), math.radians(270)),
    Part.LineSegment(App.Vector(-96.1, -57.9, 0), App.Vector(-91, -57.9, 0)),
], False)
sketch7.addConstraint([
    Sketcher.Constraint("Tangent", 0, 2, 1, 1),
    Sketcher.Constraint("Tangent", 1, 2, 2, 1),
    Sketcher.Constraint("Tangent", 2, 2, 3, 1),
    Sketcher.Constraint("Tangent", 3, 2, 4, 1),
    Sketcher.Constraint("Tangent", 4, 2, 5, 1),
    Sketcher.Constraint("Tangent", 5, 2, 0, 1),
    Sketcher.Constraint("Tangent", 6, 2, 7, 2),
    Sketcher.Constraint("Tangent", 7, 1, 8, 2),
    Sketcher.Constraint("Tangent", 8, 1, 9, 1),
    Sketcher.Constraint("Tangent", 9, 2, 10, 2),
    Sketcher.Constraint("Tangent", 10, 1, 6, 1),
    Sketcher.Constraint("Tangent", 11, 1, 12, 1),
    Sketcher.Constraint("Tangent", 12, 2, 13, 2),
    Sketcher.Constraint("Tangent", 13, 1, 14, 1),
    Sketcher.Constraint("Tangent", 14, 2, 11, 2),
    Sketcher.Constraint("Tangent", 15, 2, 16, 2),
    Sketcher.Constraint("Tangent", 16, 1, 17, 2),
    Sketcher.Constraint("Tangent", 17, 1, 18, 1),
    Sketcher.Constraint("Tangent", 18, 2, 19, 2),
    Sketcher.Constraint("Tangent", 19, 1, 15, 1),
    Sketcher.Constraint("Tangent", 20, 2, 21, 2),
    Sketcher.Constraint("Tangent", 21, 1, 22, 1),
    Sketcher.Constraint("Tangent", 22, 2, 23, 2),
    Sketcher.Constraint("Tangent", 23, 1, 20, 1),
    Sketcher.Constraint("Tangent", 24, 1, 25, 1),
    Sketcher.Constraint("Tangent", 25, 2, 26, 2),
    Sketcher.Constraint("Tangent", 26, 1, 27, 1),
    Sketcher.Constraint("Tangent", 27, 2, 24, 2),
    Sketcher.Constraint("Horizontal", 1),
    Sketcher.Constraint("Vertical", 3),
    Sketcher.Constraint("Vertical", 5),
    Sketcher.Constraint("Horizontal", 6),
    Sketcher.Constraint("Horizontal", 9),
    Sketcher.Constraint("Horizontal", 12),
    Sketcher.Constraint("Horizontal", 14),
    Sketcher.Constraint("Horizontal", 15),
    Sketcher.Constraint("Horizontal", 18),
    Sketcher.Constraint("Horizontal", 20),
    Sketcher.Constraint("Horizontal", 22),
    Sketcher.Constraint("Horizontal", 25),
    Sketcher.Constraint("Horizontal", 27),
    Sketcher.Constraint("Equal", 0, 2),
    Sketcher.Constraint("Equal", 7, 8),
    Sketcher.Constraint("Equal", 10, 11),
    Sketcher.Constraint("Equal", 13, 16),
    Sketcher.Constraint("Equal", 16, 17),
    Sketcher.Constraint("Equal", 19, 24),
    Sketcher.Constraint("Horizontal", 4, 3, 11, 3),
    Sketcher.Constraint("Horizontal", 10, 3, 16, 3),
    Sketcher.Constraint("Horizontal", 13, 3, 24, 3),
    Sketcher.Constraint("Horizontal", 7, 1, 16, 1),
    Sketcher.Constraint("Vertical", 10, 3, 11, 3),
    Sketcher.Constraint("Vertical", 8, 3, 13, 3),
    Sketcher.Constraint("Vertical", 17, 3, 24, 3),
    Sketcher.Constraint("Vertical", 19, 3, 26, 3),
    Sketcher.Constraint("Equal", 14, 15),
    Sketcher.Constraint("Equal", 18, 20),
    Sketcher.Constraint("DistanceX", 1, 2, 1, 1, Q("1 in")),
    Sketcher.Constraint("Radius", 0, Q("0.25 in")),
    Sketcher.Constraint("DistanceX", 6, 2, 6, 1, Q("0.2 in")),
    Sketcher.Constraint("DistanceY", 21, 3, -1, 1, Q("1 in")),
    Sketcher.Constraint("DistanceX", 21, 3, 0, 3, Q("0.4 in")),
    Sketcher.Constraint("DistanceX", 0, 3, -1, 1, Q("3.38 in")),
    Sketcher.Constraint("Radius", 7, Q("1.5 mm")),
    Sketcher.Constraint("Radius", 21, Q("11 mm")),
    Sketcher.Constraint("DistanceY", 3, 2, 3, 1, Q("45.852259 mm")),
    Sketcher.Constraint("DistanceY", 4, 3, -1, 1, Q("59.4 mm")),
    Sketcher.Constraint("DistanceX", 7, 3, -1, 1, Q("106.092 mm")),
    Sketcher.Constraint("DistanceY", 7, 3, -1, 1, Q("10.4 mm")),
    Sketcher.Constraint("DistanceX", 16, 3, -1, 1, Q("91.012 mm")),
    Sketcher.Constraint("DistanceY", 7, 1, 1, 2, Q("1.847751 mm")),
])
pocket4 = body.newObject("PartDesign::Pocket", "Pocket003")
pocket4.Profile = sketch7
pocket4.Type = "ThroughAll"

doc.recompute()
